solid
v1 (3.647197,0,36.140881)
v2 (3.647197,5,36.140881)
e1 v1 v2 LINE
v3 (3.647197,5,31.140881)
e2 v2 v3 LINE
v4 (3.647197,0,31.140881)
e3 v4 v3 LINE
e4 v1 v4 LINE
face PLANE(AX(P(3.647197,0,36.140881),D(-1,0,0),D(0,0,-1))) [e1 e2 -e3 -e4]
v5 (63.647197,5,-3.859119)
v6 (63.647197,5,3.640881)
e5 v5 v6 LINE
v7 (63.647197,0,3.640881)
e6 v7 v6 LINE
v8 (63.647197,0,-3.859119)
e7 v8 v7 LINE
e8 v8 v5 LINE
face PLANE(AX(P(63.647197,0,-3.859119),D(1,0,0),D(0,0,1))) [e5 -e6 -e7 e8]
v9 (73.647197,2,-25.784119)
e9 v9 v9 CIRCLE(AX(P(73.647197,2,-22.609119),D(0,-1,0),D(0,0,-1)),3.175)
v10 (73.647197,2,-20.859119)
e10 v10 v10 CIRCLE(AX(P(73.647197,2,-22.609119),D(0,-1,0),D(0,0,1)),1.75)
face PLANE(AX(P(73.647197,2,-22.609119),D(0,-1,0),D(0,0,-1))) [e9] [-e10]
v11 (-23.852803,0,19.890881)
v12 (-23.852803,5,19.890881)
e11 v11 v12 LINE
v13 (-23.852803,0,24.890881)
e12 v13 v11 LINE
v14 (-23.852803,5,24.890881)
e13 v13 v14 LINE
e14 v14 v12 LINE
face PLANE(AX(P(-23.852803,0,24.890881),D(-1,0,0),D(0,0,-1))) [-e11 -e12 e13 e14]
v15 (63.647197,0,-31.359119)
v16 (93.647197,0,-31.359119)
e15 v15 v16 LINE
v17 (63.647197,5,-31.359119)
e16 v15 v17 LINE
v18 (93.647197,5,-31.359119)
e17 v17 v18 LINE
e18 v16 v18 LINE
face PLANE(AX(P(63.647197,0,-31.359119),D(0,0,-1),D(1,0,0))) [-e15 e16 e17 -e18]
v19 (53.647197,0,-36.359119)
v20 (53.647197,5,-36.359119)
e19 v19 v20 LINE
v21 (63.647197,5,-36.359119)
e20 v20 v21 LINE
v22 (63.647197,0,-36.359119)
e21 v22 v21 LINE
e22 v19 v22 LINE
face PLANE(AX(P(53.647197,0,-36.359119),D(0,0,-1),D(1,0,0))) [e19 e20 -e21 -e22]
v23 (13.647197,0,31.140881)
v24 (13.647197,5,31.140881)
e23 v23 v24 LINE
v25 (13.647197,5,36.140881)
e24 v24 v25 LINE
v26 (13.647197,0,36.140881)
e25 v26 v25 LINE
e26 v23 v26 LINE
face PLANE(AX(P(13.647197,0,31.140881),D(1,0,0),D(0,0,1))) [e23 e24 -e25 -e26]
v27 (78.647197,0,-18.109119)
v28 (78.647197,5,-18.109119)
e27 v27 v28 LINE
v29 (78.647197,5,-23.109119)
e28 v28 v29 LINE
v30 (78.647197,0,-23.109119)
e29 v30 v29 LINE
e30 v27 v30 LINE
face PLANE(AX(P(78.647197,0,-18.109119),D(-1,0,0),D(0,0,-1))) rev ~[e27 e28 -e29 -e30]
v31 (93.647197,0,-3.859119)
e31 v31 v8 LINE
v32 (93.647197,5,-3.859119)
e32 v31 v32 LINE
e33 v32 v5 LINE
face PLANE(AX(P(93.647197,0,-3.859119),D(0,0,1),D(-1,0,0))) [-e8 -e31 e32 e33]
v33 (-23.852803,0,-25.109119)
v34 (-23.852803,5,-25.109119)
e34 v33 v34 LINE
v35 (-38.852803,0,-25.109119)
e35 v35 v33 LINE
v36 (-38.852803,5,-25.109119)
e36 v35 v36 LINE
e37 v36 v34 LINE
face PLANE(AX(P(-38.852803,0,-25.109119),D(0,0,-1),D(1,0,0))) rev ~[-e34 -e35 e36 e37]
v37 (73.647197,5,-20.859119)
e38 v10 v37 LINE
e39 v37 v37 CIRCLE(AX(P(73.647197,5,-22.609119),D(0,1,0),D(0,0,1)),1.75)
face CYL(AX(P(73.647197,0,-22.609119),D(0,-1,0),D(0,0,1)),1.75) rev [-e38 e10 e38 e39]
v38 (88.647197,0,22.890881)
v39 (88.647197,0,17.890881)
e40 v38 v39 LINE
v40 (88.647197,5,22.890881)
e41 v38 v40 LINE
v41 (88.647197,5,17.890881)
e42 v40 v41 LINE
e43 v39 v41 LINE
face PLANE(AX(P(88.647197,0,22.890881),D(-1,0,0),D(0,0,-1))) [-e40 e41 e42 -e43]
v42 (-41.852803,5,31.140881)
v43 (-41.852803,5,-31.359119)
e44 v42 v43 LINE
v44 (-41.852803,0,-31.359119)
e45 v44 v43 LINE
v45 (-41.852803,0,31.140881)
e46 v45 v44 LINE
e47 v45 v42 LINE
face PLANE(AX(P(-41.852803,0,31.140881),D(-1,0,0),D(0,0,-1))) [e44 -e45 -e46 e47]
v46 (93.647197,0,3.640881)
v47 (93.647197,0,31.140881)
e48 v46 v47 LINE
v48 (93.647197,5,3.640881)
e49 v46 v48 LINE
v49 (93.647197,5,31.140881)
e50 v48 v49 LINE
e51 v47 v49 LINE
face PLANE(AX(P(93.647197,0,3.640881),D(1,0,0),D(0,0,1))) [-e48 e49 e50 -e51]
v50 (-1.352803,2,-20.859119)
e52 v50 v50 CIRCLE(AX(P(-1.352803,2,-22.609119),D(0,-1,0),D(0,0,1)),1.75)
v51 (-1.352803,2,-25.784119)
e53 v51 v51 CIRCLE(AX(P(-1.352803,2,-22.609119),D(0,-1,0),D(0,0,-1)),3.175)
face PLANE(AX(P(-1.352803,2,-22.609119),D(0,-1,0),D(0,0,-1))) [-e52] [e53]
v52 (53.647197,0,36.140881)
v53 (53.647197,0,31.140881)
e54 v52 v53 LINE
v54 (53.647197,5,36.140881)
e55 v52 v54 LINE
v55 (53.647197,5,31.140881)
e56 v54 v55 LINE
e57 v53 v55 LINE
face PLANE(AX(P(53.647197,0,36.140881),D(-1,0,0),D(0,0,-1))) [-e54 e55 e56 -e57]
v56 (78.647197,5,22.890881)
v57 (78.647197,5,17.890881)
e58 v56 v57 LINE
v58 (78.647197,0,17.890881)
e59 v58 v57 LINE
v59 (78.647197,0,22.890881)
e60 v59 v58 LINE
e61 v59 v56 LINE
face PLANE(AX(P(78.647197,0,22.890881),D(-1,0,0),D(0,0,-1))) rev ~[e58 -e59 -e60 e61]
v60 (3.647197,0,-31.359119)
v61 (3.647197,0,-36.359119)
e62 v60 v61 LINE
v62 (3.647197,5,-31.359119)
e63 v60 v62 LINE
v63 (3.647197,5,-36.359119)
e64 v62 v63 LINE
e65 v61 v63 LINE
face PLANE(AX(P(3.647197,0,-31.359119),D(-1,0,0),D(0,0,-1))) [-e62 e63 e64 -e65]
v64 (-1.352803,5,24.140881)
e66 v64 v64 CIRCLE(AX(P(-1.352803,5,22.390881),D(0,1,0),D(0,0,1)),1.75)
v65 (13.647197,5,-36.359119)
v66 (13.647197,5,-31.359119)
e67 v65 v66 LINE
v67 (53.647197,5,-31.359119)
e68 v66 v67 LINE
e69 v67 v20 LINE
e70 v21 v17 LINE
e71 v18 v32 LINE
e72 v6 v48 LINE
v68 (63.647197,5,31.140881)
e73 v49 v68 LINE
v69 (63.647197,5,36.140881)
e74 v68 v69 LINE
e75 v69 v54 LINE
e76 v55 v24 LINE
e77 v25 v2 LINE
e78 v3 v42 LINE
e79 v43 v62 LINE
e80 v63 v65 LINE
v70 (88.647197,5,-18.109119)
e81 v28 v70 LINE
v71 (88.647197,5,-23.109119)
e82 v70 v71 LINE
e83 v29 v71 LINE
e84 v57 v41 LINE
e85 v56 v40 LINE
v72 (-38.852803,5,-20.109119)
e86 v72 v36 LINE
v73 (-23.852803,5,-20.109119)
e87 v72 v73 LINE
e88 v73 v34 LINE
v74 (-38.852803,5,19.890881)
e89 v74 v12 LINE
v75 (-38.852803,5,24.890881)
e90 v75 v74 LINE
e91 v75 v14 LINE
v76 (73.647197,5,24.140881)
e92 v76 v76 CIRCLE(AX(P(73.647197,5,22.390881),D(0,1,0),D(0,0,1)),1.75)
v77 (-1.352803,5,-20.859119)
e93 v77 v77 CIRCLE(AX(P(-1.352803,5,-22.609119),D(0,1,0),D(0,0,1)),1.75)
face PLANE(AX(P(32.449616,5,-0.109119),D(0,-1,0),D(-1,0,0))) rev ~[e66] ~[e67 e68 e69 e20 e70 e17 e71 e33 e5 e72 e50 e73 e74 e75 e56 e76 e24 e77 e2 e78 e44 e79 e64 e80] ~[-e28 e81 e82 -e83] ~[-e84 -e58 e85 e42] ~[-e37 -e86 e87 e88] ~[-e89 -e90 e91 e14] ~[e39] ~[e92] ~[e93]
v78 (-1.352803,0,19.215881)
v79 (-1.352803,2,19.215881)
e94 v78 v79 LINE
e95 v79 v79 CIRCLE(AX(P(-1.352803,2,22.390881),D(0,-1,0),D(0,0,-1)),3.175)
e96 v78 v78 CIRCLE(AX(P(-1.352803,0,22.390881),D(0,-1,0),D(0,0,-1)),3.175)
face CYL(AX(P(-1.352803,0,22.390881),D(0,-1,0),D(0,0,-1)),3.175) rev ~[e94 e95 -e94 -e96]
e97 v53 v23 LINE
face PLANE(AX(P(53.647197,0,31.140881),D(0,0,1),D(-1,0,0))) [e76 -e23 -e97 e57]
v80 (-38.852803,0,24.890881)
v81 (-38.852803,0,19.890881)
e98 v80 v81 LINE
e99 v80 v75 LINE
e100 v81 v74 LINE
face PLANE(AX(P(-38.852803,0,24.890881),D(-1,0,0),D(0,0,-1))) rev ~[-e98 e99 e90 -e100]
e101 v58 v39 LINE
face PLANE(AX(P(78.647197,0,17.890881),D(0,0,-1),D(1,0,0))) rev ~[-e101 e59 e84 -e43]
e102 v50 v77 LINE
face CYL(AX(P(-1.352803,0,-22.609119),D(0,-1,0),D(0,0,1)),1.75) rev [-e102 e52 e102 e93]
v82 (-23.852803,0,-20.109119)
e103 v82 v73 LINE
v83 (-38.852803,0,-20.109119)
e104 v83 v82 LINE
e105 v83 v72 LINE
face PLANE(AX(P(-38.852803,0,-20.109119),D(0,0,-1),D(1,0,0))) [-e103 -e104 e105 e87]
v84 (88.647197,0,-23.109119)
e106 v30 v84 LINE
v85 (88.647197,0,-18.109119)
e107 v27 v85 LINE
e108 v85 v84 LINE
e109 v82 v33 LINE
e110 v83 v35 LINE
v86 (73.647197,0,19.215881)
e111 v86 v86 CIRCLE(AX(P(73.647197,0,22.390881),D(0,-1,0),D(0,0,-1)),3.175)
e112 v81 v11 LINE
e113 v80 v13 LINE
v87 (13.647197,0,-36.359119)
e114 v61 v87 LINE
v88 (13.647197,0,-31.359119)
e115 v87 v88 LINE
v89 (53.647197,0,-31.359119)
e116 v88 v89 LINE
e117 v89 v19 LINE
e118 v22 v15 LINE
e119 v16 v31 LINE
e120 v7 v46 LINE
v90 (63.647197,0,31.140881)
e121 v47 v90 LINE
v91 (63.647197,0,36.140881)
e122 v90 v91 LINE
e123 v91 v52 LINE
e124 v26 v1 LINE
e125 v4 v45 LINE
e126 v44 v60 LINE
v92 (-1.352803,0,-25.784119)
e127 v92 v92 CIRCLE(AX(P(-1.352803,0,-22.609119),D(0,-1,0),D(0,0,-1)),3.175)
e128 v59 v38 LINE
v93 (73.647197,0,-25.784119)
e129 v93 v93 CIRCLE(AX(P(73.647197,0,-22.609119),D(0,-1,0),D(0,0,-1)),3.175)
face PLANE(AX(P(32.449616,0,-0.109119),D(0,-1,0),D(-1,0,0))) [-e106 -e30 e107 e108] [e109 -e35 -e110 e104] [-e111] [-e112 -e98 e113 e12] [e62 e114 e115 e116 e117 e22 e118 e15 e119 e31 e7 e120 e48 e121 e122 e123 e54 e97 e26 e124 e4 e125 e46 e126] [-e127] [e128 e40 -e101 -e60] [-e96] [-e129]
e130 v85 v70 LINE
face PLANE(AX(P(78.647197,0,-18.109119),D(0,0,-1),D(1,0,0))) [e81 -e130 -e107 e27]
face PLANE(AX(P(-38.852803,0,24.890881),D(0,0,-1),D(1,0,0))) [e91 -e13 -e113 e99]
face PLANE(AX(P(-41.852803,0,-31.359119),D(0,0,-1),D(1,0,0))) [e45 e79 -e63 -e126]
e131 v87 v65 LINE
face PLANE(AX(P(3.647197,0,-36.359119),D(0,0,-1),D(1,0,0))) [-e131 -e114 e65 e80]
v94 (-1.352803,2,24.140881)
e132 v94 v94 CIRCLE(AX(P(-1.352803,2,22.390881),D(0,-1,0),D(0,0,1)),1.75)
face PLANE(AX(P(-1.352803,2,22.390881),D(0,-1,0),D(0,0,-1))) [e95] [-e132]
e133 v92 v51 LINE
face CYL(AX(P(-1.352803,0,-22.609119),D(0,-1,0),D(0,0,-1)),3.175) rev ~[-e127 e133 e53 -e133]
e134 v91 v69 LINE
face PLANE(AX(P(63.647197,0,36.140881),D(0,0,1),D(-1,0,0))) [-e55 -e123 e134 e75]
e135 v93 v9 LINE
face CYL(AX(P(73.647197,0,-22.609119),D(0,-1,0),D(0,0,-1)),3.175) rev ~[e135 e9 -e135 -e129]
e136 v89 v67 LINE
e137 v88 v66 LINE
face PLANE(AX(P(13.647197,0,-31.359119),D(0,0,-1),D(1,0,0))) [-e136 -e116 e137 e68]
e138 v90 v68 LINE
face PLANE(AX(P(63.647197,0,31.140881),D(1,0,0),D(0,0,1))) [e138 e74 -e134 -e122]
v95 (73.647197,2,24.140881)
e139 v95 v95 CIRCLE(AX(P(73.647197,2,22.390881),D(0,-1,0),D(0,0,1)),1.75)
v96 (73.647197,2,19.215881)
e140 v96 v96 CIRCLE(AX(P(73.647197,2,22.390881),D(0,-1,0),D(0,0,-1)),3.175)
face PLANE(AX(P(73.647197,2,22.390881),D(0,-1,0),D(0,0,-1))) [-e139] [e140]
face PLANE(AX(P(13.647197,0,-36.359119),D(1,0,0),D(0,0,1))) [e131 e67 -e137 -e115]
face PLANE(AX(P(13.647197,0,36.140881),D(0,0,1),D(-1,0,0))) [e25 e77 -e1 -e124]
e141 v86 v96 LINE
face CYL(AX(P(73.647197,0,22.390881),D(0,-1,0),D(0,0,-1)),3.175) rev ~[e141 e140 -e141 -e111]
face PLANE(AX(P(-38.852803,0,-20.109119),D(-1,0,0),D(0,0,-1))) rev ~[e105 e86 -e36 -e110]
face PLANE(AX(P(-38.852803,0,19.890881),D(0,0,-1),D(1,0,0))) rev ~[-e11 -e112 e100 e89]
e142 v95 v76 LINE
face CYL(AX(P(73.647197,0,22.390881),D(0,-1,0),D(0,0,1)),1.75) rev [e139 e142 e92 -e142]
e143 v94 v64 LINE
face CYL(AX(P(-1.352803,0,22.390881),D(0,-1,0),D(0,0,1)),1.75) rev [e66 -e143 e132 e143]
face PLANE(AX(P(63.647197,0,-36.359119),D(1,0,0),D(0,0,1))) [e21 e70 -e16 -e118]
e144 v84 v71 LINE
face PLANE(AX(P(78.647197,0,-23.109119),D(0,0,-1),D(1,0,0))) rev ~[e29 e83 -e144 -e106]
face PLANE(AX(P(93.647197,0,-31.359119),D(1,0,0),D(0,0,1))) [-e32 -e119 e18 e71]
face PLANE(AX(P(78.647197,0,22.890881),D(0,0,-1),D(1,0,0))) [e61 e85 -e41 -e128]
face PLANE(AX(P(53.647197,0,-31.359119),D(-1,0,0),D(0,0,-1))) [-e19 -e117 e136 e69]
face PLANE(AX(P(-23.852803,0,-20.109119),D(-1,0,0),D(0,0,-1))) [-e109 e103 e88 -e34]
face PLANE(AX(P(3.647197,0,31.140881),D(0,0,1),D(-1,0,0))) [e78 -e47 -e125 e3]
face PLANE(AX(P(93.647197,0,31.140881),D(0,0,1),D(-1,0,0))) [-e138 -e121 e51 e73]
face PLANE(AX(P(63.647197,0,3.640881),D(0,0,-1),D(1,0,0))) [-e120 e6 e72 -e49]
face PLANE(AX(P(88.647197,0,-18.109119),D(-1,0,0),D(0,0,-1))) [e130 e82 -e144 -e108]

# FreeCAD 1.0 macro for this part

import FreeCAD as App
import Part
import Sketcher
from FreeCAD import Vector
Q = App.Units.Quantity


def add_polygon(sketch, points):
    """Adds a closed chain of lines whose ends are joined by coincident constraints."""
    first, n = sketch.GeometryCount, len(points)
    for a, b in zip(points, points[1:] + points[:1]):
        sketch.addGeometry(Part.LineSegment(App.Vector(*a, 0), App.Vector(*b, 0)), False)
    for i in range(n):
        sketch.addConstraint(Sketcher.Constraint("Coincident", first + i, 2, first + (i + 1) % n, 1))

doc = App.newDocument("Part")
body = doc.addObject("PartDesign::Body", "Body")

# Sketch on XZ plane
sketch1 = body.newObject("Sketcher::SketchObject", "Sketch")
sketch1.AttachmentSupport = (doc.getObject("XZ_Plane"), [""])
sketch1.MapMode = "FlatFace"
add_polygon(sketch1, [(3.6, -36.4), (3.6, -31.4), (-41.9, -31.4), (-41.9, 31.1), (3.6, 31.1), (3.6, 36.1), (13.6, 36.1), (13.6, 31.1), (53.6, 31.1), (53.6, 36.1), (63.6, 36.1), (63.6, 31.1), (93.6, 31.1), (93.6, 3.6), (63.6, 3.6), (63.6, -3.9), (93.6, -3.9), (93.6, -31.4), (63.6, -31.4), (63.6, -36.4), (53.6, -36.4), (53.6, -31.4), (13.6, -31.4), (13.6, -36.4)])  # lines 0-23
sketch1.addGeometry(Part.Circle(Vector(73.6, 22.4, 0), Vector(0, 0, 1), 1.8), False)  # 24
add_polygon(sketch1, [(78.6, 22.9), (78.6, 17.9), (88.6, 17.9), (88.6, 22.9)])  # lines 25-28
sketch1.addGeometry(Part.Circle(Vector(-1.4, 22.4, 0), Vector(0, 0, 1), 1.8), False)  # 29
add_polygon(sketch1, [(-38.9, 24.9), (-38.9, 19.9), (-23.9, 19.9), (-23.9, 24.9)])  # lines 30-33
add_polygon(sketch1, [(78.6, -18.1), (78.6, -23.1), (88.6, -23.1), (88.6, -18.1)])  # lines 34-37
sketch1.addGeometry(Part.Circle(Vector(73.6, -22.6, 0), Vector(0, 0, 1), 1.8), False)  # 38
sketch1.addGeometry(Part.Circle(Vector(-1.4, -22.6, 0), Vector(0, 0, 1), 1.8), False)  # 39
add_polygon(sketch1, [(-38.9, -20.1), (-38.9, -25.1), (-23.9, -25.1), (-23.9, -20.1)])  # lines 40-43
sketch1.addConstraint([
    Sketcher.Constraint("Vertical", 0),
    Sketcher.Constraint("Horizontal", 1),
    Sketcher.Constraint("Vertical", 2),
    Sketcher.Constraint("Horizontal", 3),
    Sketcher.Constraint("Vertical", 4),
    Sketcher.Constraint("Horizontal", 5),
    Sketcher.Constraint("Vertical", 6),
    Sketcher.Constraint("Horizontal", 7),
    Sketcher.Constraint("Vertical", 8),
    Sketcher.Constraint("Horizontal", 9),
    Sketcher.Constraint("Vertical", 10),
    Sketcher.Constraint("Horizontal", 11),
    Sketcher.Constraint("Vertical", 12),
    Sketcher.Constraint("Horizontal", 13),
    Sketcher.Constraint("Vertical", 14),
    Sketcher.Constraint("Horizontal", 15),
    Sketcher.Constraint("Vertical", 16),
    Sketcher.Constraint("Horizontal", 17),
    Sketcher.Constraint("Vertical", 18),
    Sketcher.Constraint("Horizontal", 19),
    Sketcher.Constraint("Vertical", 20),
    Sketcher.Constraint("Horizontal", 21),
    Sketcher.Constraint("Vertical", 22),
    Sketcher.Constraint("Horizontal", 23),
    Sketcher.Constraint("Vertical", 25),
    Sketcher.Constraint("Horizontal", 26),
    Sketcher.Constraint("Vertical", 27),
    Sketcher.Constraint("Horizontal", 28),
    Sketcher.Constraint("Vertical", 30),
    Sketcher.Constraint("Horizontal", 31),
    Sketcher.Constraint("Vertical", 32),
    Sketcher.Constraint("Horizontal", 33),
    Sketcher.Constraint("Vertical", 34),
    Sketcher.Constraint("Horizontal", 35),
    Sketcher.Constraint("Vertical", 36),
    Sketcher.Constraint("Horizontal", 37),
    Sketcher.Constraint("Vertical", 40),
    Sketcher.Constraint("Horizontal", 41),
    Sketcher.Constraint("Vertical", 42),
    Sketcher.Constraint("Horizontal", 43),
    Sketcher.Constraint("Equal", 24, 29),
    Sketcher.Constraint("Equal", 29, 38),
    Sketcher.Constraint("Equal", 38, 39),
    Sketcher.Constraint("Horizontal", 24, 3, 29, 3),
    Sketcher.Constraint("Horizontal", 38, 3, 39, 3),
    Sketcher.Constraint("Horizontal", 3, 2, 6, 2),
    Sketcher.Constraint("Horizontal", 5, 2, 8, 2),
    Sketcher.Constraint("Horizontal", 7, 2, 10, 2),
    Sketcher.Constraint("Horizontal", 1, 2, 16, 2),
    Sketcher.Constraint("Horizontal", 17, 2, 20, 2),
    Sketcher.Constraint("Horizontal", 19, 2, 22, 2),
    Sketcher.Constraint("Vertical", 24, 3, 38, 3),
    Sketcher.Constraint("Vertical", 29, 3, 39, 3),
    Sketcher.Constraint("Vertical", 0, 2, 3, 2),
    Sketcher.Constraint("Vertical", 10, 2, 13, 2),
    Sketcher.Constraint("Vertical", 12, 2, 15, 2),
    Sketcher.Constraint("Vertical", 14, 2, 17, 2),
    Sketcher.Constraint("Vertical", 8, 2, 19, 2),
    Sketcher.Constraint("Vertical", 6, 2, 21, 2),
    Sketcher.Constraint("Vertical", 28, 2, 34, 2),
    Sketcher.Constraint("Vertical", 27, 2, 35, 2),
    Sketcher.Constraint("Vertical", 33, 2, 40, 2),
    Sketcher.Constraint("Vertical", 32, 2, 41, 2),
    Sketcher.Constraint("Equal", 5, 9),
    Sketcher.Constraint("Equal", 23, 26),
    Sketcher.Constraint("Equal", 0, 4),
    Sketcher.Constraint("Equal", 12, 16),
    Sketcher.Constraint("Equal", 22, 25),
    Sketcher.Constraint("Equal", 27, 30),
    Sketcher.Constraint("Equal", 32, 34),
    Sketcher.Constraint("Equal", 36, 40),
    Sketcher.Constraint("Diameter", 24, Q("3.5 mm")),
    Sketcher.Constraint("DistanceX", 5, 1, 5, 2, Q("10 mm")),
    Sketcher.Constraint("DistanceX", 7, 1, 7, 2, Q("40 mm")),
    Sketcher.Constraint("DistanceX", 11, 1, 11, 2, Q("30 mm")),
    Sketcher.Constraint("DistanceX", 31, 1, 31, 2, Q("15 mm")),
    Sketcher.Constraint("DistanceY", 0, 1, 0, 2, Q("5 mm")),
    Sketcher.Constraint("DistanceX", 1, 2, 1, 1, Q("45.5 mm")),
    Sketcher.Constraint("DistanceY", 2, 1, 2, 2, Q("62.5 mm")),
    Sketcher.Constraint("DistanceY", 12, 2, 12, 1, Q("27.5 mm")),
    Sketcher.Constraint("DistanceX", 29, 3, 24, 3, Q("75 mm")),
    Sketcher.Constraint("DistanceY", 38, 3, 24, 3, Q("45 mm")),
    Sketcher.Constraint("DistanceX", 39, 3, 0, 2, Q("5 mm")),
    Sketcher.Constraint("DistanceX", 24, 3, 25, 2, Q("5 mm")),
    Sketcher.Constraint("DistanceX", 2, 2, 30, 2, Q("3 mm")),
    Sketcher.Constraint("DistanceY", 40, 2, 30, 2, Q("45 mm")),
    Sketcher.Constraint("DistanceY", 25, 2, 24, 3, Q("4.5 mm")),
    Sketcher.Constraint("DistanceY", 30, 2, 29, 3, Q("2.5 mm")),
    Sketcher.Constraint("DistanceY", 34, 2, 38, 3, Q("0.5 mm")),
    Sketcher.Constraint("DistanceY", 0, 2, 39, 3, Q("8.75 mm")),
    Sketcher.Constraint("DistanceY", -1, 1, 24, 3, Q("22.390881 mm")),
    Sketcher.Constraint("DistanceX", -1, 1, 24, 3, Q("73.647197 mm")),
])
pad1 = body.newObject("PartDesign::Pad", "Pad")
pad1.Profile = sketch1
pad1.Length = 5
pad1.Reversed = True

# Sketch on XZ plane
sketch2 = body.newObject("Sketcher::SketchObject", "Sketch001")
sketch2.AttachmentSupport = (doc.getObject("XZ_Plane"), [""])
sketch2.MapMode = "FlatFace"
sketch2.addGeometry([
    Part.Circle(Vector(-1.4, 22.4, 0), Vector(0, 0, 1), 3.2),
    Part.Circle(Vector(73.6, 22.4, 0), Vector(0, 0, 1), 3.2),
    Part.Circle(Vector(-1.4, -22.6, 0), Vector(0, 0, 1), 3.2),
    Part.Circle(Vector(73.6, -22.6, 0), Vector(0, 0, 1), 3.2),
], False)
sketch2.addConstraint([
    Sketcher.Constraint("Equal", 0, 1),
    Sketcher.Constraint("Equal", 1, 2),
    Sketcher.Constraint("Equal", 2, 3),
    Sketcher.Constraint("Horizontal", 0, 3, 1, 3),
    Sketcher.Constraint("Horizontal", 2, 3, 3, 3),
    Sketcher.Constraint("Vertical", 0, 3, 2, 3),
    Sketcher.Constraint("Vertical", 1, 3, 3, 3),
    Sketcher.Constraint("Diameter", 0, Q("6.35 mm")),
    Sketcher.Constraint("DistanceX", 0, 3, 1, 3, Q("75 mm")),
    Sketcher.Constraint("DistanceY", 2, 3, 0, 3, Q("45 mm")),
    Sketcher.Constraint("DistanceY", -1, 1, 0, 3, Q("22.390881 mm")),
    Sketcher.Constraint("DistanceX", 0, 3, -1, 1, Q("1.352803 mm")),
])
pocket1 = body.newObject("PartDesign::Pocket", "Pocket")
pocket1.Profile = sketch2
pocket1.Length = 2

doc.recompute()
